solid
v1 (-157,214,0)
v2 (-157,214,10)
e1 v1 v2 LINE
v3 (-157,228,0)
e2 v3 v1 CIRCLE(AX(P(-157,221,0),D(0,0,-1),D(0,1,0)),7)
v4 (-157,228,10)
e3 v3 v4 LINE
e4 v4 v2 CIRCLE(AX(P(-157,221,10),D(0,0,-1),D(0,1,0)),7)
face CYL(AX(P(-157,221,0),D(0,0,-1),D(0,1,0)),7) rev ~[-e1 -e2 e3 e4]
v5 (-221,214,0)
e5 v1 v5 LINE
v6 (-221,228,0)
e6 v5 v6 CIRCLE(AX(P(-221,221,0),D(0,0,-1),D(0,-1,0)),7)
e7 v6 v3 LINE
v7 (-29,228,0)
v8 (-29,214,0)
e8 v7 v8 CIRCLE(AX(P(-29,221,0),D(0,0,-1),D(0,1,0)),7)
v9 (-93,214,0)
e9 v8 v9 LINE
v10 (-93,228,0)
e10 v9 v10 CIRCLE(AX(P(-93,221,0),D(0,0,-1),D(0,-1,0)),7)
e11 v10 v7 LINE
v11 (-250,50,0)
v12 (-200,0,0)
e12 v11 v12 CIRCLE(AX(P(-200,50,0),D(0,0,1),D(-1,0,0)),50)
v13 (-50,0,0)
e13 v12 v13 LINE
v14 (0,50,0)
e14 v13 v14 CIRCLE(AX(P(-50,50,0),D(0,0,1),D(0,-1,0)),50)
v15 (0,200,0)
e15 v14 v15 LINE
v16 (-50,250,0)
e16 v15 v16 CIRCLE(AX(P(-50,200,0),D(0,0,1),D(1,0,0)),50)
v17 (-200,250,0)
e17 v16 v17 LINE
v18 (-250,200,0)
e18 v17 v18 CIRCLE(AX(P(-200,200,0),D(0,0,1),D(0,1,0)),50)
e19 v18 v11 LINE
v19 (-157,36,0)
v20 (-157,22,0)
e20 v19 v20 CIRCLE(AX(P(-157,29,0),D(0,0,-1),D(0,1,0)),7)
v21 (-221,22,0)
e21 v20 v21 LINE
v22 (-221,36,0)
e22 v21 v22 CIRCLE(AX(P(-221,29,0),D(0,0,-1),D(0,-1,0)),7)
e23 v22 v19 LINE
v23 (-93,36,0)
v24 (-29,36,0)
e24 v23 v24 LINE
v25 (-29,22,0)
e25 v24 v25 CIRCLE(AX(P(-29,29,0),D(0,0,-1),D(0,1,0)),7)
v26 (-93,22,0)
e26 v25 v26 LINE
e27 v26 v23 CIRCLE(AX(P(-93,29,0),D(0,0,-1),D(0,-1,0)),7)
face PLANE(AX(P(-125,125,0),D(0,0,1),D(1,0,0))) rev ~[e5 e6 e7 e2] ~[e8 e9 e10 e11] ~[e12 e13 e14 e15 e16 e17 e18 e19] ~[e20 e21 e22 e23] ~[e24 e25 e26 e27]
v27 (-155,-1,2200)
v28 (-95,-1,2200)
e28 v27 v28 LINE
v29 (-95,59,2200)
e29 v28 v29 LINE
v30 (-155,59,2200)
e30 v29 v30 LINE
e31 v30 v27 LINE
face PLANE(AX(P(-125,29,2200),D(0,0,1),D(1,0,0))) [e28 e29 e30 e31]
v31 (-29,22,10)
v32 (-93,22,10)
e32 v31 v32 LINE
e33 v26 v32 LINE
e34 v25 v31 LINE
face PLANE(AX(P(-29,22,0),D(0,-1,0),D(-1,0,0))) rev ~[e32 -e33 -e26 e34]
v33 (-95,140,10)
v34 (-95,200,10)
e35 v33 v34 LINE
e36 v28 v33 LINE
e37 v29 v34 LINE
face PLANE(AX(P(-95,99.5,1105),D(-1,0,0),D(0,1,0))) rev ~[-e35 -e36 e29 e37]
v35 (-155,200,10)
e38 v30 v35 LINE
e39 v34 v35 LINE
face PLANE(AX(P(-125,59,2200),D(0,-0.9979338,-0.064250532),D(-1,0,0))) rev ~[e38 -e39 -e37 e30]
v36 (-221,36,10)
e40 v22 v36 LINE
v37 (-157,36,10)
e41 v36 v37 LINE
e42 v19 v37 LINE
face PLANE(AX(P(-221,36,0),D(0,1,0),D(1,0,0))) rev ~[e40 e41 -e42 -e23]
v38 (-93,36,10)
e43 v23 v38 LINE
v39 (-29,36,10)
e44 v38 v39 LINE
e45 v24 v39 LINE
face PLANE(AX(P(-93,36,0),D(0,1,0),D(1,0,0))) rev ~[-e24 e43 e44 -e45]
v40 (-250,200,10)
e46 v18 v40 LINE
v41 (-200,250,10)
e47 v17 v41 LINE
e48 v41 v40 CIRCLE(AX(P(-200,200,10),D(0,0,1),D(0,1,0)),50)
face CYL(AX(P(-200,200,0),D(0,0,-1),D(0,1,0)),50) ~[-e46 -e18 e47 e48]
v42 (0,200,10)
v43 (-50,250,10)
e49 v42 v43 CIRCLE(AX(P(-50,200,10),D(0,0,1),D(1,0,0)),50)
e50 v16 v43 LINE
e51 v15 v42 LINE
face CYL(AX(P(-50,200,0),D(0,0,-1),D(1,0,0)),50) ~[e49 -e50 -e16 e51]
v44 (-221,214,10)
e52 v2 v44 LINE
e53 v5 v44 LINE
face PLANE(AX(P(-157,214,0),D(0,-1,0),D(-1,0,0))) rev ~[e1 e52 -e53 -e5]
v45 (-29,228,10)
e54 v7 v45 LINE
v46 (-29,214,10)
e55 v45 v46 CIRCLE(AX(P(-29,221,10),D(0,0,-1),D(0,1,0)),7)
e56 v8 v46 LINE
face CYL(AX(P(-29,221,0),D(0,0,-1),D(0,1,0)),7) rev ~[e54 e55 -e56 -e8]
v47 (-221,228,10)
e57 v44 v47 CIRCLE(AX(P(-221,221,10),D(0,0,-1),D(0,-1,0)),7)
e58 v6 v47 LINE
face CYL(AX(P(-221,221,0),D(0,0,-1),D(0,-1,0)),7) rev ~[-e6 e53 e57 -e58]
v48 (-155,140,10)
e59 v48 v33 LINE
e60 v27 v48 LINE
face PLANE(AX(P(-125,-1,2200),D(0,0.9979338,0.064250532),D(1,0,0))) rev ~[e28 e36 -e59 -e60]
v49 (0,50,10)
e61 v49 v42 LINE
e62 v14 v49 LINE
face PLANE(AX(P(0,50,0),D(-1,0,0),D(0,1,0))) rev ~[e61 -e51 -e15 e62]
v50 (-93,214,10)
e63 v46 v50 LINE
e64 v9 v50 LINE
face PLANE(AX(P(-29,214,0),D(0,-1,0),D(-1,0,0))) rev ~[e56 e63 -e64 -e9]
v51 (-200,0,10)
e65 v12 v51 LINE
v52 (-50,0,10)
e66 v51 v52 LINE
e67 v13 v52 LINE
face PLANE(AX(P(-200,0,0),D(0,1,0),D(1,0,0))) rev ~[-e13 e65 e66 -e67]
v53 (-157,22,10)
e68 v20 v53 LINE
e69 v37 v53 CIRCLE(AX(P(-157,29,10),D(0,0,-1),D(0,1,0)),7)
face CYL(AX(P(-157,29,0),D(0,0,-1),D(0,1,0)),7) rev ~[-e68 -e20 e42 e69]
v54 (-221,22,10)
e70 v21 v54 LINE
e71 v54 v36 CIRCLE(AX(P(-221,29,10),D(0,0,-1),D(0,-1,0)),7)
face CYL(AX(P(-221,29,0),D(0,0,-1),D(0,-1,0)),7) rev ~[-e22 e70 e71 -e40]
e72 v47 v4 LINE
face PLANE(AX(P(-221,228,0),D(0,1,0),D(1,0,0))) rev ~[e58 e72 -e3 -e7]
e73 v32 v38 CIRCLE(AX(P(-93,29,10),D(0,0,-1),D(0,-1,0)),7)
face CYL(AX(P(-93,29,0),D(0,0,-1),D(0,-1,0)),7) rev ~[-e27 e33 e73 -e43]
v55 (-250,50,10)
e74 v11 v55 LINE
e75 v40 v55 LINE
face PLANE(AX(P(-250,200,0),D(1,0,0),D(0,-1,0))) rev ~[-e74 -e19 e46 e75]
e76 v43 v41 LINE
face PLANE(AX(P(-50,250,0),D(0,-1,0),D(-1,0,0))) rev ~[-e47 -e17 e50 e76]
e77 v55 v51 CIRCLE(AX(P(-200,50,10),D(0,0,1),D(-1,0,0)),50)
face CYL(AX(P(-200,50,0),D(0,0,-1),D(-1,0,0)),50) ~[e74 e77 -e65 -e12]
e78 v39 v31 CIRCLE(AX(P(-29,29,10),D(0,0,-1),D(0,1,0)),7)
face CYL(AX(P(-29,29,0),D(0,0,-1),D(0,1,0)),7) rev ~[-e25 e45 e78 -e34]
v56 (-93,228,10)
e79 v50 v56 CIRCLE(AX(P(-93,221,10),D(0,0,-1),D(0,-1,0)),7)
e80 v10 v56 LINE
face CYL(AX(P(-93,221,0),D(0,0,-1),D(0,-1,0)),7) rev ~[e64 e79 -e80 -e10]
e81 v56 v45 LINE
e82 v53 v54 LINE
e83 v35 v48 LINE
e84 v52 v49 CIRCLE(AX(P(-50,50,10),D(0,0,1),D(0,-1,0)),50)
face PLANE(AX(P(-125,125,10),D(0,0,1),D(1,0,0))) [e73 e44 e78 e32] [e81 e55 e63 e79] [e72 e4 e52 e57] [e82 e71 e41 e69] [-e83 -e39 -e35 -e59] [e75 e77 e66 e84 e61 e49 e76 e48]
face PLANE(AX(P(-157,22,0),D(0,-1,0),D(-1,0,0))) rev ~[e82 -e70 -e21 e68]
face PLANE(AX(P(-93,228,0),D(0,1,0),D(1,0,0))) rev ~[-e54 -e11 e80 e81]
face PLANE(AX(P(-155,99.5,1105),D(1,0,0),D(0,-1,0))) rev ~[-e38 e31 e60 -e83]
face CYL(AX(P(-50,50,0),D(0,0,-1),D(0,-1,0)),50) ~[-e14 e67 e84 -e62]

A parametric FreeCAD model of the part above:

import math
import FreeCAD as App
import Part
import Sketcher
from FreeCAD import Vector


def add_polygon(sketch, points):
    """Adds a closed chain of lines whose ends are joined by coincident constraints."""
    first, n = sketch.GeometryCount, len(points)
    for a, b in zip(points, points[1:] + points[:1]):
        sketch.addGeometry(Part.LineSegment(App.Vector(*a, 0), App.Vector(*b, 0)), False)
    for i in range(n):
        sketch.addConstraint(Sketcher.Constraint("Coincident", first + i, 2, first + (i + 1) % n, 1))

doc = App.newDocument("Part")
body = doc.addObject("PartDesign::Body", "Body")

# Sketch on XY plane
sketch1 = body.newObject("Sketcher::SketchObject", "Sketch")
sketch1.AttachmentSupport = (doc.getObject("XY_Plane"), [""])
sketch1.MapMode = "FlatFace"
sketch1.addGeometry(Part.LineSegment(Vector(-200, 0, 0), Vector(-50, 0, 0)), False)
sketch1.addGeometry(Part.ArcOfCircle(Part.Circle(Vector(-50, 50, 0), Vector(0, 0, 1), 50), math.radians(-90), math.radians(0)), False)
sketch1.addGeometry(Part.LineSegment(Vector(0, 50, 0), Vector(0, 200, 0)), False)
sketch1.addGeometry(Part.ArcOfCircle(Part.Circle(Vector(-50, 200, 0), Vector(0, 0, 1), 50), math.radians(0), math.radians(90)), False)
sketch1.addGeometry(Part.LineSegment(Vector(-50, 250, 0), Vector(-200, 250, 0)), False)
sketch1.addGeometry(Part.ArcOfCircle(Part.Circle(Vector(-200, 200, 0), Vector(0, 0, 1), 50), math.radians(90), math.radians(180)), False)
sketch1.addGeometry(Part.LineSegment(Vector(-250, 200, 0), Vector(-250, 50, 0)), False)
sketch1.addGeometry(Part.ArcOfCircle(Part.Circle(Vector(-200, 50, 0), Vector(0, 0, 1), 50), math.radians(180), math.radians(270)), False)
sketch1.addGeometry(Part.LineSegment(Vector(-157, 22, 0), Vector(-221, 22, 0)), False)
sketch1.addGeometry(Part.ArcOfCircle(Part.Circle(Vector(-221, 29, 0), Vector(0, 0, 1), 7), math.radians(90), math.radians(270)), False)
sketch1.addGeometry(Part.LineSegment(Vector(-221, 36, 0), Vector(-157, 36, 0)), False)
sketch1.addGeometry(Part.ArcOfCircle(Part.Circle(Vector(-157, 29, 0), Vector(0, 0, 1), 7), math.radians(-90), math.radians(90)), False)
sketch1.addGeometry(Part.ArcOfCircle(Part.Circle(Vector(-93, 29, 0), Vector(0, 0, 1), 7), math.radians(90), math.radians(270)), False)
sketch1.addGeometry(Part.LineSegment(Vector(-93, 36, 0), Vector(-29, 36, 0)), False)
sketch1.addGeometry(Part.ArcOfCircle(Part.Circle(Vector(-29, 29, 0), Vector(0, 0, 1), 7), math.radians(-90), math.radians(90)), False)
sketch1.addGeometry(Part.LineSegment(Vector(-29, 22, 0), Vector(-93, 22, 0)), False)
sketch1.addGeometry(Part.ArcOfCircle(Part.Circle(Vector(-157, 221, 0), Vector(0, 0, 1), 7), math.radians(-90), math.radians(90)), False)
sketch1.addGeometry(Part.LineSegment(Vector(-157, 214, 0), Vector(-221, 214, 0)), False)
sketch1.addGeometry(Part.ArcOfCircle(Part.Circle(Vector(-221, 221, 0), Vector(0, 0, 1), 7), math.radians(90), math.radians(270)), False)
sketch1.addGeometry(Part.LineSegment(Vector(-221, 228, 0), Vector(-157, 228, 0)), False)
sketch1.addGeometry(Part.LineSegment(Vector(-29, 214, 0), Vector(-93, 214, 0)), False)
sketch1.addGeometry(Part.ArcOfCircle(Part.Circle(Vector(-93, 221, 0), Vector(0, 0, 1), 7), math.radians(90), math.radians(270)), False)
sketch1.addGeometry(Part.LineSegment(Vector(-93, 228, 0), Vector(-29, 228, 0)), False)
sketch1.addGeometry(Part.ArcOfCircle(Part.Circle(Vector(-29, 221, 0), Vector(0, 0, 1), 7), math.radians(-90), math.radians(90)), False)
sketch1.addConstraint(Sketcher.Constraint("Tangent", 0, 2, 1, 1))
sketch1.addConstraint(Sketcher.Constraint("Tangent", 1, 2, 2, 1))
sketch1.addConstraint(Sketcher.Constraint("Tangent", 2, 2, 3, 1))
sketch1.addConstraint(Sketcher.Constraint("Tangent", 3, 2, 4, 1))
sketch1.addConstraint(Sketcher.Constraint("Tangent", 4, 2, 5, 1))
sketch1.addConstraint(Sketcher.Constraint("Tangent", 5, 2, 6, 1))
sketch1.addConstraint(Sketcher.Constraint("Tangent", 6, 2, 7, 1))
sketch1.addConstraint(Sketcher.Constraint("Tangent", 7, 2, 0, 1))
sketch1.addConstraint(Sketcher.Constraint("Tangent", 8, 2, 9, 2))
sketch1.addConstraint(Sketcher.Constraint("Tangent", 9, 1, 10, 1))
sketch1.addConstraint(Sketcher.Constraint("Tangent", 10, 2, 11, 2))
sketch1.addConstraint(Sketcher.Constraint("Tangent", 11, 1, 8, 1))
sketch1.addConstraint(Sketcher.Constraint("Tangent", 12, 1, 13, 1))
sketch1.addConstraint(Sketcher.Constraint("Tangent", 13, 2, 14, 2))
sketch1.addConstraint(Sketcher.Constraint("Tangent", 14, 1, 15, 1))
sketch1.addConstraint(Sketcher.Constraint("Tangent", 15, 2, 12, 2))
sketch1.addConstraint(Sketcher.Constraint("Tangent", 16, 1, 17, 1))
sketch1.addConstraint(Sketcher.Constraint("Tangent", 17, 2, 18, 2))
sketch1.addConstraint(Sketcher.Constraint("Tangent", 18, 1, 19, 1))
sketch1.addConstraint(Sketcher.Constraint("Tangent", 19, 2, 16, 2))
sketch1.addConstraint(Sketcher.Constraint("Tangent", 20, 2, 21, 2))
sketch1.addConstraint(Sketcher.Constraint("Tangent", 21, 1, 22, 1))
sketch1.addConstraint(Sketcher.Constraint("Tangent", 22, 2, 23, 2))
sketch1.addConstraint(Sketcher.Constraint("Tangent", 23, 1, 20, 1))
sketch1.addConstraint(Sketcher.Constraint("Horizontal", 0))
sketch1.addConstraint(Sketcher.Constraint("Vertical", 2))
sketch1.addConstraint(Sketcher.Constraint("Horizontal", 4))
sketch1.addConstraint(Sketcher.Constraint("Vertical", 6))
sketch1.addConstraint(Sketcher.Constraint("Horizontal", 8))
sketch1.addConstraint(Sketcher.Constraint("Horizontal", 10))
sketch1.addConstraint(Sketcher.Constraint("Horizontal", 13))
sketch1.addConstraint(Sketcher.Constraint("Horizontal", 15))
sketch1.addConstraint(Sketcher.Constraint("Horizontal", 17))
sketch1.addConstraint(Sketcher.Constraint("Horizontal", 19))
sketch1.addConstraint(Sketcher.Constraint("Horizontal", 20))
sketch1.addConstraint(Sketcher.Constraint("Horizontal", 22))
sketch1.addConstraint(Sketcher.Constraint("Equal", 1, 3))
sketch1.addConstraint(Sketcher.Constraint("Equal", 3, 5))
sketch1.addConstraint(Sketcher.Constraint("Equal", 5, 7))
sketch1.addConstraint(Sketcher.Constraint("Equal", 11, 12))
sketch1.addConstraint(Sketcher.Constraint("Equal", 14, 16))
sketch1.addConstraint(Sketcher.Constraint("Equal", 18, 21))
sketch1.addConstraint(Sketcher.Constraint("PointOnObject", 0, 2, -1))
sketch1.addConstraint(Sketcher.Constraint("PointOnObject", 1, 2, -2))
sketch1.addConstraint(Sketcher.Constraint("Horizontal", 11, 3, 12, 3))
sketch1.addConstraint(Sketcher.Constraint("Horizontal", 18, 3, 21, 3))
sketch1.addConstraint(Sketcher.Constraint("Vertical", 11, 3, 16, 3))
sketch1.addConstraint(Sketcher.Constraint("Vertical", 9, 3, 18, 3))
sketch1.addConstraint(Sketcher.Constraint("Vertical", 12, 3, 21, 3))
sketch1.addConstraint(Sketcher.Constraint("Vertical", 14, 3, 23, 3))
sketch1.addConstraint(Sketcher.Constraint("Equal", 10, 13))
sketch1.addConstraint(Sketcher.Constraint("Equal", 4, 2))
sketch1.addConstraint(Sketcher.Constraint("Radius", 1, 50.0))
sketch1.addConstraint(Sketcher.Constraint("Radius", 9, 7.0))
sketch1.addConstraint(Sketcher.Constraint("DistanceX", 0, 1, 0, 2, 150.0))
sketch1.addConstraint(Sketcher.Constraint("DistanceX", 8, 2, 8, 1, 64.0))
sketch1.addConstraint(Sketcher.Constraint("DistanceX", 9, 3, -1, 1, 221.0))
sketch1.addConstraint(Sketcher.Constraint("DistanceY", -1, 1, 9, 3, 29.0))
sketch1.addConstraint(Sketcher.Constraint("DistanceX", 12, 3, -1, 1, 93.0))
sketch1.addConstraint(Sketcher.Constraint("DistanceY", -1, 1, 16, 3, 221.0))
pad1 = body.newObject("PartDesign::Pad", "Pad")
pad1.Profile = sketch1
pad1.Length = 10

# Sketch on XY plane
sketch2 = body.newObject("Sketcher::SketchObject", "Sketch001")
sketch2.AttachmentSupport = (doc.getObject("XY_Plane"), [""])
sketch2.MapMode = "FlatFace"
sketch2.AttachmentOffset = App.Placement(Vector(0, 0, 10), App.Rotation())
add_polygon(sketch2, [(-155, 200), (-155, 140), (-95, 140), (-95, 200)])  # lines 0-3
sketch2.addConstraint(Sketcher.Constraint("Vertical", 0))
sketch2.addConstraint(Sketcher.Constraint("Horizontal", 1))
sketch2.addConstraint(Sketcher.Constraint("Vertical", 2))
sketch2.addConstraint(Sketcher.Constraint("Horizontal", 3))
sketch2.addConstraint(Sketcher.Constraint("Equal", 3, 0))
sketch2.addConstraint(Sketcher.Constraint("DistanceX", 1, 1, 1, 2, 60.0))
sketch2.addConstraint(Sketcher.Constraint("DistanceX", 0, 2, -1, 1, 155.0))
sketch2.addConstraint(Sketcher.Constraint("DistanceY", -1, 1, 0, 2, 140.0))

# Sketch on an angled plane
sketch3 = body.newObject("Sketcher::SketchObject", "Sketch002")
sketch3.Placement = App.Placement(Vector(0, 169.939396, 10.941304), App.Rotation(Vector(0, -0.064250532, 0.9979338), Vector(1, 0, 0), Vector(0, 0.9979338, 0.064250532), "ZXY"))
sketch3.addGeometry(Part.LineSegment(Vector(2194, 0, 0), Vector(-1, 0, 0)), False)
sketch3.addConstraint(Sketcher.Constraint("Horizontal", 0))
sketch3.addConstraint(Sketcher.Constraint("PointOnObject", 0, 1, -1))
sketch3.addConstraint(Sketcher.Constraint("DistanceX", 0, 2, 0, 1, 2194.534347))
sketch3.addConstraint(Sketcher.Constraint("DistanceX", -1, 1, 0, 1, 2193.591095))
doc.recompute()

additivepipe = body.newObject("PartDesign::AdditivePipe", "AdditivePipe")
additivepipe.Profile = sketch2
additivepipe.Spine = (sketch3, ["Edge1"])

doc.recompute()
